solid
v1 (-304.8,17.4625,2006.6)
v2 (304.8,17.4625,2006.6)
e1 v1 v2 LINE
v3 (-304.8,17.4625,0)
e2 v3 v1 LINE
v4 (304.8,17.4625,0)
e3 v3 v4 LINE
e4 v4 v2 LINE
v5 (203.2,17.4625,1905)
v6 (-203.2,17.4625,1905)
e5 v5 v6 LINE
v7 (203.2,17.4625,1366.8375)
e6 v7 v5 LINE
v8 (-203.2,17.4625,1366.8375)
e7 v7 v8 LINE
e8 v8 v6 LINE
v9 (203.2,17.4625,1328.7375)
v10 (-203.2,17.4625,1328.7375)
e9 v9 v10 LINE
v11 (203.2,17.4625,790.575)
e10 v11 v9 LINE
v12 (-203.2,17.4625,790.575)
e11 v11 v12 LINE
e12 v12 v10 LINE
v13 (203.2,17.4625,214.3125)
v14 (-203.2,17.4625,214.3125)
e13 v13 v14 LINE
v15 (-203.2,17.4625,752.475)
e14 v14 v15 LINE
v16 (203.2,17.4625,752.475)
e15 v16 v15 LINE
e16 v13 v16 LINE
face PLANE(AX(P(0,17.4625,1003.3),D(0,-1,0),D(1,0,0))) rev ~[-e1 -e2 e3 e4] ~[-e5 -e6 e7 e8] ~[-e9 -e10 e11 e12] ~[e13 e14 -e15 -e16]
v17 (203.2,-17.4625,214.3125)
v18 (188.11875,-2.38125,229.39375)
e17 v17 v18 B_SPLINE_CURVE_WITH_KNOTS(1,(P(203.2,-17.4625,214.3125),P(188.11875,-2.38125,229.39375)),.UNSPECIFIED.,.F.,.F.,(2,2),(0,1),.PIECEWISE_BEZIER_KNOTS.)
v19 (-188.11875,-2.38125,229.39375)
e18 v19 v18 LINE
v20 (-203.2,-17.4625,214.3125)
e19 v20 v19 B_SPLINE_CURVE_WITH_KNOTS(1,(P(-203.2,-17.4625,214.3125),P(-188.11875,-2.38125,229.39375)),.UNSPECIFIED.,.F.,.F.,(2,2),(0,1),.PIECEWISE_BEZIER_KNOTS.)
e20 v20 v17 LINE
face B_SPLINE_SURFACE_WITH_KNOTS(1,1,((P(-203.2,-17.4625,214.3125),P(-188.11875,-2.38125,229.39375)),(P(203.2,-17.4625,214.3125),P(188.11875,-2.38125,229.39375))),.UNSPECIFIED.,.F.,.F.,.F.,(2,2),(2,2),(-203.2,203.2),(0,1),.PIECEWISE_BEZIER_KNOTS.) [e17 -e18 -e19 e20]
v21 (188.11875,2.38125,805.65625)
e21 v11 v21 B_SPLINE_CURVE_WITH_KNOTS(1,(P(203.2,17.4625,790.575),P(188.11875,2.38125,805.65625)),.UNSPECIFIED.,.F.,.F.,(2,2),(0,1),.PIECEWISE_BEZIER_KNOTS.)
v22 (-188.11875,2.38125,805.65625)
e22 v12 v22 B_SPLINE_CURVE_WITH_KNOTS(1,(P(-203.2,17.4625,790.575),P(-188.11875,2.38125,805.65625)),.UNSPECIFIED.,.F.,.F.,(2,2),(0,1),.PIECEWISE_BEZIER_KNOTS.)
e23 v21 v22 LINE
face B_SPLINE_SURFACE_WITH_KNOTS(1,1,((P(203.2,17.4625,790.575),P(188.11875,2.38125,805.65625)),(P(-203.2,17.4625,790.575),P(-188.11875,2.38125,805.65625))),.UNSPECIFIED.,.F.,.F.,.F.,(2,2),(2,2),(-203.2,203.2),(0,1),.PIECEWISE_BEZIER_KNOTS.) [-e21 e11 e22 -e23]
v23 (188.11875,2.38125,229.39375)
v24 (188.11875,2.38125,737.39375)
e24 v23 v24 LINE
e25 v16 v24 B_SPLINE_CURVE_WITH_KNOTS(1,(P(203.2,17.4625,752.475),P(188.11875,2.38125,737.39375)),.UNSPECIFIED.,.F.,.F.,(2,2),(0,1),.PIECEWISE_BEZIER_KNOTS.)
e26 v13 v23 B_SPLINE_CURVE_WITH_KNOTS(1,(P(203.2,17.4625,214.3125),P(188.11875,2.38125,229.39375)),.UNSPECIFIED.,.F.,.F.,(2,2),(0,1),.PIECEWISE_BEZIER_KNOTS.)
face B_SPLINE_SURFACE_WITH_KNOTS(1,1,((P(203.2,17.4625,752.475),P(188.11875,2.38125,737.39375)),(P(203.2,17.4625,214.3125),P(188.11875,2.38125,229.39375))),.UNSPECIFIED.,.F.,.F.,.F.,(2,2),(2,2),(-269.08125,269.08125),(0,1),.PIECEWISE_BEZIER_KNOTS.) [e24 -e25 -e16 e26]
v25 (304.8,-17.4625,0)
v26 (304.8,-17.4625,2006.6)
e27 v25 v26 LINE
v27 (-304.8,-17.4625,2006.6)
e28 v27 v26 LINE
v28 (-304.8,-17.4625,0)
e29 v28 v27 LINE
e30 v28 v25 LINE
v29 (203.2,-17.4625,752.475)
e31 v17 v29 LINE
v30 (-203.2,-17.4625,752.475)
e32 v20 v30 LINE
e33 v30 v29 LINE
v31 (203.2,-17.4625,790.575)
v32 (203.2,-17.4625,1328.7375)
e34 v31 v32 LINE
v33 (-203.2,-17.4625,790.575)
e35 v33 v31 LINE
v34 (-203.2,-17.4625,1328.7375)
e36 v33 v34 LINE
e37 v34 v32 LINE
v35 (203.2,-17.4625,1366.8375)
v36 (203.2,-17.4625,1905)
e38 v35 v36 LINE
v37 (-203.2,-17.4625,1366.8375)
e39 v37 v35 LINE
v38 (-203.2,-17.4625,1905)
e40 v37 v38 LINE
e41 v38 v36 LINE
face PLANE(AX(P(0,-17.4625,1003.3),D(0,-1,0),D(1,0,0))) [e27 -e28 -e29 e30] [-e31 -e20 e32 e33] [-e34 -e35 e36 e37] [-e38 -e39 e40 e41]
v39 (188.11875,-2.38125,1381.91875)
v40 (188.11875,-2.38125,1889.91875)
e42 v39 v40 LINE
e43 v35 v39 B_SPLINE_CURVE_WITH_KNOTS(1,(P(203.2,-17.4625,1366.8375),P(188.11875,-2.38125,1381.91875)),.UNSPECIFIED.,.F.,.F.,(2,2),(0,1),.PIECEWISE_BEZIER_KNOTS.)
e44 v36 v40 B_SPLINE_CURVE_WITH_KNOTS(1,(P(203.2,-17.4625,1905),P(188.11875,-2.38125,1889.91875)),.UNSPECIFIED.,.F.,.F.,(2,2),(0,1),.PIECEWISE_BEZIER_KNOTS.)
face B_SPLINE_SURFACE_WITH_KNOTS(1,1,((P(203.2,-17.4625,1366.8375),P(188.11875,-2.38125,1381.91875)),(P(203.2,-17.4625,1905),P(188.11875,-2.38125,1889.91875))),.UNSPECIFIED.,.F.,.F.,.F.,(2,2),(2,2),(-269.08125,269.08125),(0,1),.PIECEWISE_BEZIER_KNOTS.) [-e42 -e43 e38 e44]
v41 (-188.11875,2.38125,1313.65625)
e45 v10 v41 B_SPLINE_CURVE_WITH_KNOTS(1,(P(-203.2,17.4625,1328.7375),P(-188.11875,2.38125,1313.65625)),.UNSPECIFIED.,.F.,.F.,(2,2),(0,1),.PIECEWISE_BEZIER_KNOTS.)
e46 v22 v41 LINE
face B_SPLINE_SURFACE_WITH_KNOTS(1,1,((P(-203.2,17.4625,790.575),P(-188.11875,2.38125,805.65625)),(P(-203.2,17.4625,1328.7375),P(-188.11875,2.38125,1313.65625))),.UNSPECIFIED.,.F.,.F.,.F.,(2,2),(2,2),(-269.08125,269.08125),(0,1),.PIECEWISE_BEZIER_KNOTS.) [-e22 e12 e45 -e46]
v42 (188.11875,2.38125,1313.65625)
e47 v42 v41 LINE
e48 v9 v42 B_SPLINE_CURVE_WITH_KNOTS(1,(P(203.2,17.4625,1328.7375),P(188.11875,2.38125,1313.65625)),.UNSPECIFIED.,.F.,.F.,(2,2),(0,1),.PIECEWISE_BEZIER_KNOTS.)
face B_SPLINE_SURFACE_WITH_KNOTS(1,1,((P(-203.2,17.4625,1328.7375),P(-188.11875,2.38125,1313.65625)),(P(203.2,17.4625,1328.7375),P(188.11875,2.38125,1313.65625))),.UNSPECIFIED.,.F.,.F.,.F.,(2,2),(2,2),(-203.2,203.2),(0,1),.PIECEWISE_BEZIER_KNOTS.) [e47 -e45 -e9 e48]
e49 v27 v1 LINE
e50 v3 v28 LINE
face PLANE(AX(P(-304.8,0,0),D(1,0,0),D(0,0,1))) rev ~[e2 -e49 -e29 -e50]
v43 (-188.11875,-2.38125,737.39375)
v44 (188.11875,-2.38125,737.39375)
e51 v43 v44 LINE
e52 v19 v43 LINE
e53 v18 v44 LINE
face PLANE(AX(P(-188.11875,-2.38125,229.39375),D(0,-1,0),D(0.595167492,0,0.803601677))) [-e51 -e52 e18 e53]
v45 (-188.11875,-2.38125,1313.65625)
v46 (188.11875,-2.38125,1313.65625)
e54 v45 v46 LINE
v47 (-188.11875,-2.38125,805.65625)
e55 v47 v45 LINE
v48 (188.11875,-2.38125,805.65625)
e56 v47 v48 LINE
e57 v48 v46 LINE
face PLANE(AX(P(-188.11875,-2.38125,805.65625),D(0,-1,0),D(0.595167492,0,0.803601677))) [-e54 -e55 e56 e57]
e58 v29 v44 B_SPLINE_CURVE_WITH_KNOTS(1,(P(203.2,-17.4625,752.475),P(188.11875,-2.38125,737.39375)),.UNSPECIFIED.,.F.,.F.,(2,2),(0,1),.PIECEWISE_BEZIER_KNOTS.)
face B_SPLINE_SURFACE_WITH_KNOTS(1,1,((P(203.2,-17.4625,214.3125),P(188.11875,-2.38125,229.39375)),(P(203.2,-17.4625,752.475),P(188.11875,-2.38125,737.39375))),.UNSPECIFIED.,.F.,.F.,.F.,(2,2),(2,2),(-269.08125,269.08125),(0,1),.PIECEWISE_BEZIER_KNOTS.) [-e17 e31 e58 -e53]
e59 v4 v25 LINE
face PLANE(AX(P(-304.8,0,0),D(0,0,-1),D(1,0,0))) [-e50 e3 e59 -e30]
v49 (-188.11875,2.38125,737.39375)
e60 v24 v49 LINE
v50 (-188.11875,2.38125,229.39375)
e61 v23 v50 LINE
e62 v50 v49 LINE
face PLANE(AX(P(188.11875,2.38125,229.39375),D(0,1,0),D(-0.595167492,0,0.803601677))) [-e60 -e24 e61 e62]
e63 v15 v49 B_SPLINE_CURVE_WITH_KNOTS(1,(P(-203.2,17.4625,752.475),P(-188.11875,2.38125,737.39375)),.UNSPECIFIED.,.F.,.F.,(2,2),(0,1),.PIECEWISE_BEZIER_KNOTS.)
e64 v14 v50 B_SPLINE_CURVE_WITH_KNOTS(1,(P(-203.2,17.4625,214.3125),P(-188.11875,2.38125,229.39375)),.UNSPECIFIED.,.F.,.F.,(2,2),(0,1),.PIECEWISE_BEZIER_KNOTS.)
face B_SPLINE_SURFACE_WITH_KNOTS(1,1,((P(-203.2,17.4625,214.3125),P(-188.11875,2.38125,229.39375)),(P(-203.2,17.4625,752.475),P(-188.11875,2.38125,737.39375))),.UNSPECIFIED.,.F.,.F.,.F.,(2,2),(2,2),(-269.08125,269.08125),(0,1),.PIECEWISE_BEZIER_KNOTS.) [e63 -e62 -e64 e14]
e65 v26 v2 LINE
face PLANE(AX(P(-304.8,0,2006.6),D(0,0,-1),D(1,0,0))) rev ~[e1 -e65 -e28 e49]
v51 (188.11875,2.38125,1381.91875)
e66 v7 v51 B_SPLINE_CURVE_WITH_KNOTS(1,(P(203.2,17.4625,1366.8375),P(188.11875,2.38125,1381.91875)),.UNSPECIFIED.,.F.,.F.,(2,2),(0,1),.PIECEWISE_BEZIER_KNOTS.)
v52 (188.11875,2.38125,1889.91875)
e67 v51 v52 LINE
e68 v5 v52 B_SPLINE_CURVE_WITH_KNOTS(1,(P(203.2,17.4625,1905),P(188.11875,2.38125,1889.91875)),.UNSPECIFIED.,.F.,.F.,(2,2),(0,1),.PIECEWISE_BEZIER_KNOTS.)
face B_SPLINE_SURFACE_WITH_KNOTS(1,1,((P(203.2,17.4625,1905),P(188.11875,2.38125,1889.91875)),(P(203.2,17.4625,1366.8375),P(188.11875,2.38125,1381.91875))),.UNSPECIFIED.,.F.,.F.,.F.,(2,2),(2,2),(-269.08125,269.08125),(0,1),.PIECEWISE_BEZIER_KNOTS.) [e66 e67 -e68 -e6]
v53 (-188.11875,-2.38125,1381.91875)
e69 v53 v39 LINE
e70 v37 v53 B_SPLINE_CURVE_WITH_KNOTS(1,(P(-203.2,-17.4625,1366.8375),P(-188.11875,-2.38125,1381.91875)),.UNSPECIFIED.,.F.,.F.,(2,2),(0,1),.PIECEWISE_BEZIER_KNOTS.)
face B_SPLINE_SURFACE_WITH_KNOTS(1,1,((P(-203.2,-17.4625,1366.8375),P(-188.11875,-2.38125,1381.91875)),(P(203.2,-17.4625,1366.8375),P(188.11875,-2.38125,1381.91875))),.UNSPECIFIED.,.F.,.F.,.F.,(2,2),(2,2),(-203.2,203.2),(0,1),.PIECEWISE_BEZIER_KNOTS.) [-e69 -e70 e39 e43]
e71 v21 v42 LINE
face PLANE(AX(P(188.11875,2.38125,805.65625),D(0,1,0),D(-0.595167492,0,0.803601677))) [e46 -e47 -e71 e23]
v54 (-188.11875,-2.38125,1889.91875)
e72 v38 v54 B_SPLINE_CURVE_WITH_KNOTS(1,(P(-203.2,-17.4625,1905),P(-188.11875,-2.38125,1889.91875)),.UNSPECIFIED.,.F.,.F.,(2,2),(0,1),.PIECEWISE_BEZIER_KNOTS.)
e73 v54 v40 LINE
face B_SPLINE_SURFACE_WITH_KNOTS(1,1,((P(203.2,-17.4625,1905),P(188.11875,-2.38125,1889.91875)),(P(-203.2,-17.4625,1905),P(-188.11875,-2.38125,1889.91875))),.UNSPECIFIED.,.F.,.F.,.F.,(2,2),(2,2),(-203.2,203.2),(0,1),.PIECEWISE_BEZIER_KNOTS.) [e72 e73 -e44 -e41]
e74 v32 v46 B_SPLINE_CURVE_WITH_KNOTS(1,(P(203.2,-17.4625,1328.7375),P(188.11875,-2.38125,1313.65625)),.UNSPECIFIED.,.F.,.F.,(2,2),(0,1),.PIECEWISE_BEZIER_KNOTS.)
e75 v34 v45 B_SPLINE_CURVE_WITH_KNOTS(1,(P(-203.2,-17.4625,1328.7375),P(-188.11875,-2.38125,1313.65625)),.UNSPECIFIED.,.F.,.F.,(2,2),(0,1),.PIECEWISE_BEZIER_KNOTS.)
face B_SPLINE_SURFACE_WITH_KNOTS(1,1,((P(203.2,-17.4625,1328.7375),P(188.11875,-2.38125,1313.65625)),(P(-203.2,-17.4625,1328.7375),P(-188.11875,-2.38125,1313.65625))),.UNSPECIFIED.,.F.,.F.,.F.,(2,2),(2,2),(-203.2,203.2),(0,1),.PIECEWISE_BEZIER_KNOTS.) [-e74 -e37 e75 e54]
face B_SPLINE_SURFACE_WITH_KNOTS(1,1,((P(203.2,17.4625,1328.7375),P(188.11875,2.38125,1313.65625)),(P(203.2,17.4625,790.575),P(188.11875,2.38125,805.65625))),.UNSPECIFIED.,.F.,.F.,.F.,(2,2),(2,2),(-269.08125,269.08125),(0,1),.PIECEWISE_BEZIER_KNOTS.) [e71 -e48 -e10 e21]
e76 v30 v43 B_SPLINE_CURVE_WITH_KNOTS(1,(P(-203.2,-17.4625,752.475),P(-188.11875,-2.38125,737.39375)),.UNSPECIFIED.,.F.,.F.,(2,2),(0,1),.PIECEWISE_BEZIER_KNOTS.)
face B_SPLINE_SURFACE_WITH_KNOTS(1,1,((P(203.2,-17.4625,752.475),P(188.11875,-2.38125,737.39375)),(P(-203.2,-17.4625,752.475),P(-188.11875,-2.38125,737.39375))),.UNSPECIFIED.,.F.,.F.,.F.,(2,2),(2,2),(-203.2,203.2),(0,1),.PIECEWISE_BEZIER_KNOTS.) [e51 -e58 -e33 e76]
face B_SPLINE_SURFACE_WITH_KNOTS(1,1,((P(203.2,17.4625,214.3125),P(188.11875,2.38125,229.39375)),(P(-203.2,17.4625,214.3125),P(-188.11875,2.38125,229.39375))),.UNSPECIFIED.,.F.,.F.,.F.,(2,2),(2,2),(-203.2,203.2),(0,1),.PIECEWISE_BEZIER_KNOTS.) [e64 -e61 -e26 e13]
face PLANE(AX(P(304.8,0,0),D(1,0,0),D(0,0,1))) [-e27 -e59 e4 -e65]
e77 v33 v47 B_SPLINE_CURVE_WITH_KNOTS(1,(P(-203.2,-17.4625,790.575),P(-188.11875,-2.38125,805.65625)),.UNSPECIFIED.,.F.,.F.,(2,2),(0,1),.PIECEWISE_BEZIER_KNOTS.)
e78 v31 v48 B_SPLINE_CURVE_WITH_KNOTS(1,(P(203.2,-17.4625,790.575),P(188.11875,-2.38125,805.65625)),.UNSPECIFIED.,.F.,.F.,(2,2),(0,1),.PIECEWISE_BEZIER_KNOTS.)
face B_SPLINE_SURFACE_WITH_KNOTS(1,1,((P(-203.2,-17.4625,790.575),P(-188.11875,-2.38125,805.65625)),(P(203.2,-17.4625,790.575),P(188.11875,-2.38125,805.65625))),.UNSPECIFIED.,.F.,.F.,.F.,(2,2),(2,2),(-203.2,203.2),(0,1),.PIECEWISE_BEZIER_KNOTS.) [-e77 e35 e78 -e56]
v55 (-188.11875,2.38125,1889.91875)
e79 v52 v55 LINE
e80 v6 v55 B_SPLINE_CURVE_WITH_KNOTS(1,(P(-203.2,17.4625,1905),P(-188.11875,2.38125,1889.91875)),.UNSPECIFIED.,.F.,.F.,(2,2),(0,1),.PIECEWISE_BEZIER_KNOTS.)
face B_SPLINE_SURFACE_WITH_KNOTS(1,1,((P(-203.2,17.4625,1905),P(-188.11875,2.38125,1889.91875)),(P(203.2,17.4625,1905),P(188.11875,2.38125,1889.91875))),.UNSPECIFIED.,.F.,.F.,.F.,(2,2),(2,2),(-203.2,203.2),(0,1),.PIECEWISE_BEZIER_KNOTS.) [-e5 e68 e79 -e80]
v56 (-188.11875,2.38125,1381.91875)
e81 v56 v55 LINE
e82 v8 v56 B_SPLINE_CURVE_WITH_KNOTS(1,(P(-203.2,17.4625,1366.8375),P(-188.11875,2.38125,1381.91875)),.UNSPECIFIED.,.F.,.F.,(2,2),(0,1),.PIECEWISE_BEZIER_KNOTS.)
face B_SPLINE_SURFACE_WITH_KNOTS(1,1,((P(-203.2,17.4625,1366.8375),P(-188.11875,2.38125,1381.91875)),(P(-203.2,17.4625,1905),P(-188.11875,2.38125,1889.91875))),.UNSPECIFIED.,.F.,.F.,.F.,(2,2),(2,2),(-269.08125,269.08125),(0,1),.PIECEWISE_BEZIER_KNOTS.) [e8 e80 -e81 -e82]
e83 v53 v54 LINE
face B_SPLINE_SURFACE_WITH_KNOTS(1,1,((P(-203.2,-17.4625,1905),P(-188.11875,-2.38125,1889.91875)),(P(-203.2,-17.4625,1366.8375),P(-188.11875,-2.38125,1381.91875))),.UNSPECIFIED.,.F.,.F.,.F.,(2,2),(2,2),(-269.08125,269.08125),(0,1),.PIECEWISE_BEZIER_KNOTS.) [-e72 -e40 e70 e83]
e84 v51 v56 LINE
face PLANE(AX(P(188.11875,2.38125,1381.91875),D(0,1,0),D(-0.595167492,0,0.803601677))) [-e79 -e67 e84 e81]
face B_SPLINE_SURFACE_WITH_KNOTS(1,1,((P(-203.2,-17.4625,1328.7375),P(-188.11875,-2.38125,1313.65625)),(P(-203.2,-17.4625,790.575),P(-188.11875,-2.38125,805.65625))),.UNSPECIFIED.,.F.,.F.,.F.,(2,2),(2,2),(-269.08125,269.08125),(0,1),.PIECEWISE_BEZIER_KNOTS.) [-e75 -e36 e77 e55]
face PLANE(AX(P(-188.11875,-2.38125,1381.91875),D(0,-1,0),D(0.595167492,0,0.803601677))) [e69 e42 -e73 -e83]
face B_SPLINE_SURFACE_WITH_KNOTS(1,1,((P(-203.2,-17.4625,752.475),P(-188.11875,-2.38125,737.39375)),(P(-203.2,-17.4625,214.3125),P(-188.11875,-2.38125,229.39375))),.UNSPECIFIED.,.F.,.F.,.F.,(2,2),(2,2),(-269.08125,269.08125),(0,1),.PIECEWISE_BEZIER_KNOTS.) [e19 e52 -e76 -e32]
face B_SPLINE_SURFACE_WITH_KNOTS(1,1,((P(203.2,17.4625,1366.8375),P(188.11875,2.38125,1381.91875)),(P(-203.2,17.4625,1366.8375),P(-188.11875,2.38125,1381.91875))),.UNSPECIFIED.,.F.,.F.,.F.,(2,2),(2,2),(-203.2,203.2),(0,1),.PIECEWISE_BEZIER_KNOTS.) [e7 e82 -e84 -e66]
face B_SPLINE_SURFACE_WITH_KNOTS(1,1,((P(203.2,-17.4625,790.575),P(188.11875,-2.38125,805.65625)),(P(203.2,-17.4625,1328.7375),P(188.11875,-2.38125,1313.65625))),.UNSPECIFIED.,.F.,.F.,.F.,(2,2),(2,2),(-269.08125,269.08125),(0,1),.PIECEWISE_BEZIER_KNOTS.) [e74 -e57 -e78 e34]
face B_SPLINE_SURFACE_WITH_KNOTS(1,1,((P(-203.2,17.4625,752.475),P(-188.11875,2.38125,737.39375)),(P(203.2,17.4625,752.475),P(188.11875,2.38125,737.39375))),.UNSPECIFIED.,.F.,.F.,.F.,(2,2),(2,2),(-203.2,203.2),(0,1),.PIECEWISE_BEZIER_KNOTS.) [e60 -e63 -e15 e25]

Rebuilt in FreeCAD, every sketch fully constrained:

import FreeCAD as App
import Part
import Sketcher

V = App.Vector
Q = App.Units.Quantity


def add_polygon(sketch, points):
    """Adds a closed chain of lines whose ends are joined by coincident constraints."""
    first, n = sketch.GeometryCount, len(points)
    for a, b in zip(points, points[1:] + points[:1]):
        sketch.addGeometry(Part.LineSegment(App.Vector(*a, 0), App.Vector(*b, 0)), False)
    for i in range(n):
        sketch.addConstraint(Sketcher.Constraint("Coincident", first + i, 2, first + (i + 1) % n, 1))

doc = App.newDocument("Part")
body = doc.addObject("PartDesign::Body", "Body")

# Sketch on XZ plane
sketch1 = body.newObject("Sketcher::SketchObject", "Sketch")
sketch1.AttachmentSupport = (doc.getObject("XZ_Plane"), [""])
sketch1.MapMode = "FlatFace"
add_polygon(sketch1, [(-305, 2007), (-305, 0), (305, 0), (305, 2007)])  # lines 0-3
sketch1.addConstraint(Sketcher.Constraint("Vertical", 0))
sketch1.addConstraint(Sketcher.Constraint("Horizontal", 1))
sketch1.addConstraint(Sketcher.Constraint("Vertical", 2))
sketch1.addConstraint(Sketcher.Constraint("Horizontal", 3))
sketch1.addConstraint(Sketcher.Constraint("Symmetric", 0, 2, 1, 2, -1, 1))
sketch1.addConstraint(Sketcher.Constraint("DistanceX", 1, 1, 1, 2, Q("24 in")))
sketch1.addConstraint(Sketcher.Constraint("DistanceY", 0, 2, 0, 1, Q("79 in")))
pad1 = body.newObject("PartDesign::Pad", "Pad")
pad1.Profile = sketch1
pad1.Length = Q("1.375 in")
pad1.Midplane = True

# Sketch on XZ plane
sketch2 = body.newObject("Sketcher::SketchObject", "Sketch001")
sketch2.AttachmentSupport = (doc.getObject("XZ_Plane"), [""])
sketch2.MapMode = "FlatFace"
sketch2.AttachmentOffset = App.Placement(V(0, 0, -0.6875 * 25.4), App.Rotation())
add_polygon(sketch2, [(203, 1905), (203, 1367), (-203, 1367), (-203, 1905)])  # lines 0-3
add_polygon(sketch2, [(203, 1329), (203, 791), (-203, 791), (-203, 1329)])  # lines 4-7
add_polygon(sketch2, [(203, 752), (203, 214), (-203, 214), (-203, 752)])  # lines 8-11
sketch2.addConstraint(Sketcher.Constraint("Vertical", 0))
sketch2.addConstraint(Sketcher.Constraint("Horizontal", 1))
sketch2.addConstraint(Sketcher.Constraint("Vertical", 2))
sketch2.addConstraint(Sketcher.Constraint("Horizontal", 3))
sketch2.addConstraint(Sketcher.Constraint("Vertical", 4))
sketch2.addConstraint(Sketcher.Constraint("Horizontal", 5))
sketch2.addConstraint(Sketcher.Constraint("Vertical", 6))
sketch2.addConstraint(Sketcher.Constraint("Horizontal", 7))
sketch2.addConstraint(Sketcher.Constraint("Vertical", 8))
sketch2.addConstraint(Sketcher.Constraint("Horizontal", 9))
sketch2.addConstraint(Sketcher.Constraint("Vertical", 10))
sketch2.addConstraint(Sketcher.Constraint("Horizontal", 11))
sketch2.addConstraint(Sketcher.Constraint("Vertical", 3, 2, 4, 2))
sketch2.addConstraint(Sketcher.Constraint("Vertical", 2, 2, 5, 2))
sketch2.addConstraint(Sketcher.Constraint("Vertical", 7, 2, 8, 2))
sketch2.addConstraint(Sketcher.Constraint("Vertical", 6, 2, 9, 2))
sketch2.addConstraint(Sketcher.Constraint("Equal", 2, 4))
sketch2.addConstraint(Sketcher.Constraint("Equal", 6, 8))
sketch2.addConstraint(Sketcher.Constraint("DistanceX", 1, 2, 1, 1, Q("16 in")))
sketch2.addConstraint(Sketcher.Constraint("DistanceX", -1, 1, 0, 2, Q("8 in")))
sketch2.addConstraint(Sketcher.Constraint("DistanceY", -1, 1, 2, 2, Q("75 in")))
sketch2.addConstraint(Sketcher.Constraint("DistanceY", 6, 2, 1, 2, Q("1.5 in")))
sketch2.addConstraint(Sketcher.Constraint("DistanceY", 10, 2, 5, 2, Q("1.5 in")))
sketch2.addConstraint(Sketcher.Constraint("DistanceY", 0, 2, 0, 1, Q("21.1875 in")))
pocket1 = body.newObject("PartDesign::Pocket", "Pocket")
pocket1.Profile = sketch2
pocket1.Length = Q("0.59375 in")
pocket1.Reversed = True
pocket1.TaperAngle = -45

# Sketch on XZ plane
sketch3 = body.newObject("Sketcher::SketchObject", "Sketch002")
sketch3.AttachmentSupport = (doc.getObject("XZ_Plane"), [""])
sketch3.MapMode = "FlatFace"
sketch3.AttachmentOffset = App.Placement(V(0, 0, 0.6875 * 25.4), App.Rotation())
add_polygon(sketch3, [(-203, 1905), (-203, 1367), (203, 1367), (203, 1905)])  # lines 0-3
add_polygon(sketch3, [(-203, 1329), (-203, 791), (203, 791), (203, 1329)])  # lines 4-7
add_polygon(sketch3, [(-203, 752), (-203, 214), (203, 214), (203, 752)])  # lines 8-11
sketch3.addConstraint(Sketcher.Constraint("Vertical", 0))
sketch3.addConstraint(Sketcher.Constraint("Horizontal", 1))
sketch3.addConstraint(Sketcher.Constraint("Vertical", 2))
sketch3.addConstraint(Sketcher.Constraint("Horizontal", 3))
sketch3.addConstraint(Sketcher.Constraint("Vertical", 4))
sketch3.addConstraint(Sketcher.Constraint("Horizontal", 5))
sketch3.addConstraint(Sketcher.Constraint("Vertical", 6))
sketch3.addConstraint(Sketcher.Constraint("Horizontal", 7))
sketch3.addConstraint(Sketcher.Constraint("Vertical", 8))
sketch3.addConstraint(Sketcher.Constraint("Horizontal", 9))
sketch3.addConstraint(Sketcher.Constraint("Vertical", 10))
sketch3.addConstraint(Sketcher.Constraint("Horizontal", 11))
sketch3.addConstraint(Sketcher.Constraint("Vertical", 3, 2, 4, 2))
sketch3.addConstraint(Sketcher.Constraint("Vertical", 2, 2, 5, 2))
sketch3.addConstraint(Sketcher.Constraint("Vertical", 7, 2, 8, 2))
sketch3.addConstraint(Sketcher.Constraint("Vertical", 6, 2, 9, 2))
sketch3.addConstraint(Sketcher.Constraint("Equal", 2, 4))
sketch3.addConstraint(Sketcher.Constraint("Equal", 6, 8))
sketch3.addConstraint(Sketcher.Constraint("DistanceX", 1, 1, 1, 2, Q("16 in")))
sketch3.addConstraint(Sketcher.Constraint("DistanceX", 0, 2, -1, 1, Q("8 in")))
sketch3.addConstraint(Sketcher.Constraint("DistanceY", -1, 1, 2, 2, Q("75 in")))
sketch3.addConstraint(Sketcher.Constraint("DistanceY", 6, 2, 1, 2, Q("1.5 in")))
sketch3.addConstraint(Sketcher.Constraint("DistanceY", 10, 2, 5, 2, Q("1.5 in")))
sketch3.addConstraint(Sketcher.Constraint("DistanceY", 0, 2, 0, 1, Q("21.1875 in")))
pocket2 = body.newObject("PartDesign::Pocket", "Pocket001")
pocket2.Profile = sketch3
pocket2.Length = Q("0.59375 in")
pocket2.TaperAngle = -45

doc.recompute()
